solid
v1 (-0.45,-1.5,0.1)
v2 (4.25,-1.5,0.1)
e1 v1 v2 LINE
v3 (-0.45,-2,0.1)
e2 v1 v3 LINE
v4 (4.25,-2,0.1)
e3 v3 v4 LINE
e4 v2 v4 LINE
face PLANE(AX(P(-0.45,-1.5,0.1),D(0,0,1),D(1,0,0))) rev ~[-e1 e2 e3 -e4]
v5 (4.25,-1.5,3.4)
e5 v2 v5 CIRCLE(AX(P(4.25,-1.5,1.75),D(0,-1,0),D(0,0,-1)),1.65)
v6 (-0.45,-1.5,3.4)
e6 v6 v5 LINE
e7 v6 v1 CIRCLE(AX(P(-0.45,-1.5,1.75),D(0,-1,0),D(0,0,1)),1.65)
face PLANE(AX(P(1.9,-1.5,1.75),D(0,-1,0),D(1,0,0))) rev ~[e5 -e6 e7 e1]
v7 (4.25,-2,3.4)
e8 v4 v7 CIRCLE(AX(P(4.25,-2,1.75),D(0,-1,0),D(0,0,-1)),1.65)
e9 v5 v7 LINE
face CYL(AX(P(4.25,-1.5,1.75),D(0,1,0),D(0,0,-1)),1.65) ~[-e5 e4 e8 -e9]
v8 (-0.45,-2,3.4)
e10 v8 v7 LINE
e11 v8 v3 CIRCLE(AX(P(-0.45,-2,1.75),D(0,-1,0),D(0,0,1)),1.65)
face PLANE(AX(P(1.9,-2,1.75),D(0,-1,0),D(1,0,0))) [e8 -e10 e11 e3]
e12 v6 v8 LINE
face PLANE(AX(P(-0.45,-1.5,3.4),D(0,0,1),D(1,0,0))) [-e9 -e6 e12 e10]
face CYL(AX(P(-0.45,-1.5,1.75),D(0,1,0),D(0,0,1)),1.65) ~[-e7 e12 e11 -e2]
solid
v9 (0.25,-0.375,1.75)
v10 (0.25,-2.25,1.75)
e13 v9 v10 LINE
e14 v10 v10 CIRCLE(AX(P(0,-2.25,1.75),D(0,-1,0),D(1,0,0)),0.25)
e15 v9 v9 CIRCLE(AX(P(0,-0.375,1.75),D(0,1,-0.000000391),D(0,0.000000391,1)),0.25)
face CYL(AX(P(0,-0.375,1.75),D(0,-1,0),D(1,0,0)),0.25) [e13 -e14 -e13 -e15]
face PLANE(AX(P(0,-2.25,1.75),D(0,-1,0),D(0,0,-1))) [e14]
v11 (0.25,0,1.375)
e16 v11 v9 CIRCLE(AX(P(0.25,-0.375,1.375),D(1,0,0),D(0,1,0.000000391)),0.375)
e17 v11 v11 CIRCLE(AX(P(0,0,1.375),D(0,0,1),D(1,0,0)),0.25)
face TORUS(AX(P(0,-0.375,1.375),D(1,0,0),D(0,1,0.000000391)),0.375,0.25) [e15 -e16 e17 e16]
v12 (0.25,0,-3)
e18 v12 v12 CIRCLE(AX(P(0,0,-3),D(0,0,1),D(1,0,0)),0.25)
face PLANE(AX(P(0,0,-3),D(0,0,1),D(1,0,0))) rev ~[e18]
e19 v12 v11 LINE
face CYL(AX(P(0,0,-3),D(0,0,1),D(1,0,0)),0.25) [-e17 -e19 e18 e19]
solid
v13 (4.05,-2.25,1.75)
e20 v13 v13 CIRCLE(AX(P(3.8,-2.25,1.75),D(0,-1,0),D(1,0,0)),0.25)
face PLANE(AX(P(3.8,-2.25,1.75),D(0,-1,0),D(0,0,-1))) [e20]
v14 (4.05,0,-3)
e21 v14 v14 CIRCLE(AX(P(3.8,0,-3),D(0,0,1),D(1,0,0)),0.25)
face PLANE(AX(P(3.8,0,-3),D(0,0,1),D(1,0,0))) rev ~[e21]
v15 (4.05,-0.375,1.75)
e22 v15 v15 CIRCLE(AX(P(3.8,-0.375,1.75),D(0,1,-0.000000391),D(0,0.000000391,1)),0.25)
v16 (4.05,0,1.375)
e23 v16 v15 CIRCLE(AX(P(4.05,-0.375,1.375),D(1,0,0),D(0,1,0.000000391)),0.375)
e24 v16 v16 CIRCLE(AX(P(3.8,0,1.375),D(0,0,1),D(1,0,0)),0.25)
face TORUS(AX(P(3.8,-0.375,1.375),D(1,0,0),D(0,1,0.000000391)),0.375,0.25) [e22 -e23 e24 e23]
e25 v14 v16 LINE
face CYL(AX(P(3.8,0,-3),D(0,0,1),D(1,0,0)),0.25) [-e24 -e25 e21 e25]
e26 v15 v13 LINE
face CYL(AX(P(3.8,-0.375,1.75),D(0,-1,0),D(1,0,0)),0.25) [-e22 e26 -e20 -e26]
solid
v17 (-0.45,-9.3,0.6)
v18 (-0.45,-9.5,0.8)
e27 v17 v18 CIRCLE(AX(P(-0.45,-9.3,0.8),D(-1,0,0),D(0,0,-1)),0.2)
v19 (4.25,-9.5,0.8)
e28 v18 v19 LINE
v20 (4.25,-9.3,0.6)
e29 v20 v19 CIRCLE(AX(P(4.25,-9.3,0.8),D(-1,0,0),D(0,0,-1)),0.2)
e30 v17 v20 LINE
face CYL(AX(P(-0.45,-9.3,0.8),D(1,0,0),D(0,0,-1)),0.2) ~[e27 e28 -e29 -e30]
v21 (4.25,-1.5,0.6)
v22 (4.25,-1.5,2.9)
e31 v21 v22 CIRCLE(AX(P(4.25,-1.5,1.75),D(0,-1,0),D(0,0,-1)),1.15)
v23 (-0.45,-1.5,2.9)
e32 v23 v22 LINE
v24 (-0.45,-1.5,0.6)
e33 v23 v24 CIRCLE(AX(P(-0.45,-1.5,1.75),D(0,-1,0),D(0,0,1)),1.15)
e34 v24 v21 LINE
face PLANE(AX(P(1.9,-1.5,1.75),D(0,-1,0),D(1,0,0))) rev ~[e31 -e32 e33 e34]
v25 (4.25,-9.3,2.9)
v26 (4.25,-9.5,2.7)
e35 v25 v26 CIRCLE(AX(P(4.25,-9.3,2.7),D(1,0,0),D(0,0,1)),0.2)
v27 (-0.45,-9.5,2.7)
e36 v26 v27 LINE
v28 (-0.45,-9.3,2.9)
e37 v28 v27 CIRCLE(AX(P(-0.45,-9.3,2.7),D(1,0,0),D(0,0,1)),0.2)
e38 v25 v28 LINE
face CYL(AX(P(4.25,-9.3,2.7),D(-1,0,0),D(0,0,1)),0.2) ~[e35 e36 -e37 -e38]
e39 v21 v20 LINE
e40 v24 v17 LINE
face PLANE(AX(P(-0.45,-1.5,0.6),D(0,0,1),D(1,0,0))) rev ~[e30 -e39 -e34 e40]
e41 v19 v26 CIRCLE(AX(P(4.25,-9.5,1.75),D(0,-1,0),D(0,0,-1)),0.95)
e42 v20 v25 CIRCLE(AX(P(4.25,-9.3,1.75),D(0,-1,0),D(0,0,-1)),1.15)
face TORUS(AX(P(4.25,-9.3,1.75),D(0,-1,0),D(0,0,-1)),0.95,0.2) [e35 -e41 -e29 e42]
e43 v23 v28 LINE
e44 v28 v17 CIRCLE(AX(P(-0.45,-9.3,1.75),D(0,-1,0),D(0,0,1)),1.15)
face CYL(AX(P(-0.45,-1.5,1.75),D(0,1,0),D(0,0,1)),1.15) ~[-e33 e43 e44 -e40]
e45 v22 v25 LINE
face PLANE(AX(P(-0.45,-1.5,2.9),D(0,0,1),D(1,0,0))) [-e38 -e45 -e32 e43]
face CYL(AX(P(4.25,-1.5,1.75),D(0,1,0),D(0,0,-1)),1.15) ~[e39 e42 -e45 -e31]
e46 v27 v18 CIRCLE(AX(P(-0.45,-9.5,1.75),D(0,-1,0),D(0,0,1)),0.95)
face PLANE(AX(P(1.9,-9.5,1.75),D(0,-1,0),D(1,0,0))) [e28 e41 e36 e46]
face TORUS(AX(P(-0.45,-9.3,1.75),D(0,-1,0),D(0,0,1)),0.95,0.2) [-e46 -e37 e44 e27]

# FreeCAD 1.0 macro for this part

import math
import FreeCAD as App
import Part
import Sketcher

V = App.Vector
Q = App.Units.Quantity


def edges_at(feature, points):
    """Names of the edges that pass closest to the given points."""
    edges = feature.Shape.Edges
    near = lambda p: min(range(len(edges)), key=lambda i: edges[i].distToShape(Part.Vertex(*p))[0])
    return sorted({f"Edge{near(p) + 1}" for p in points})

doc = App.newDocument("Part")
params = doc.addObject("Spreadsheet::Sheet", "Params")
for row, (alias, value) in enumerate([
    ("sketch1_radius", "1.65 mm"),
    ("sketch1_width", "4.7 mm"),
    ("pad1_length", "0.5 mm"),
    ("sketch2_radius", "1.15 mm"),
    ("sketch2_width", "4.7 mm"),
    ("pad2_length", "8 mm"),
    ("fillet_radius", "0.2 mm"),
    ("sketch3_diameter", "0.5 mm"),
    ("sketch5_diameter", "0.5 mm"),
], start=1):
    params.set(f"A{row}", alias)
    params.set(f"B{row}", "=" + value)
    params.setAlias(f"B{row}", alias)

body = doc.addObject("PartDesign::Body", "Body")

sketch1 = doc.addObject("Sketcher::SketchObject", "Sketch")
body.addObject(sketch1)
sketch1.AttachmentSupport = (doc.XZ_Plane, [""])
sketch1.MapMode = "FlatFace"
sketch1.AttachmentOffset = App.Placement(V(0, 0, 1.5), App.Rotation())
sketch1.addGeometry([
    Part.ArcOfCircle(Part.Circle(V(-0.45, 1.75, 0), V(0, 0, 1), 1.65), math.radians(90), math.radians(270)),
    Part.LineSegment(V(-0.45, 0.1, 0), V(4.25, 0.1, 0)),
    Part.ArcOfCircle(Part.Circle(V(4.25, 1.75, 0), V(0, 0, 1), 1.65), math.radians(-90), math.radians(90)),
    Part.LineSegment(V(4.25, 3.4, 0), V(-0.45, 3.4, 0)),
], False)
sketch1.addConstraint([
    Sketcher.Constraint("Tangent", 0, 2, 1, 1),
    Sketcher.Constraint("Tangent", 1, 2, 2, 1),
    Sketcher.Constraint("Tangent", 2, 2, 3, 1),
    Sketcher.Constraint("Tangent", 3, 2, 0, 1),
    Sketcher.Constraint("Horizontal", 1),
    Sketcher.Constraint("Horizontal", 3),
    Sketcher.Constraint("Radius", 0, Q("1.65 mm")),
    Sketcher.Constraint("DistanceX", 1, 1, 1, 2, Q("4.7 mm")),
    Sketcher.Constraint("DistanceY", -1, 1, 0, 2, Q("0.1 mm")),
    Sketcher.Constraint("DistanceX", 0, 3, -1, 1, Q("0.45 mm")),
])
sketch1.setExpression("Constraints[6]", "Params.sketch1_radius")
sketch1.setExpression("Constraints[7]", "Params.sketch1_width")
pad1 = doc.addObject("PartDesign::Pad", "Pad")
body.addObject(pad1)
pad1.Profile = sketch1
pad1.setExpression("Length", "Params.pad1_length")
body2 = doc.addObject("PartDesign::Body", "Body001")

sketch2 = doc.addObject("Sketcher::SketchObject", "Sketch001")
body2.addObject(sketch2)
sketch2.AttachmentSupport = (doc.getObject("XZ_Plane001"), [""])
sketch2.MapMode = "FlatFace"
sketch2.AttachmentOffset = App.Placement(V(0, 0, 1.5), App.Rotation())
sketch2.addGeometry([
    Part.ArcOfCircle(Part.Circle(V(-0.45, 1.75, 0), V(0, 0, 1), 1.15), math.radians(90), math.radians(270)),
    Part.LineSegment(V(-0.45, 0.6, 0), V(4.25, 0.6, 0)),
    Part.ArcOfCircle(Part.Circle(V(4.25, 1.75, 0), V(0, 0, 1), 1.15), math.radians(-90), math.radians(90)),
    Part.LineSegment(V(4.25, 2.9, 0), V(-0.45, 2.9, 0)),
], False)
sketch2.addConstraint([
    Sketcher.Constraint("Tangent", 0, 2, 1, 1),
    Sketcher.Constraint("Tangent", 1, 2, 2, 1),
    Sketcher.Constraint("Tangent", 2, 2, 3, 1),
    Sketcher.Constraint("Tangent", 3, 2, 0, 1),
    Sketcher.Constraint("Horizontal", 1),
    Sketcher.Constraint("Horizontal", 3),
    Sketcher.Constraint("Radius", 0, Q("1.15 mm")),
    Sketcher.Constraint("DistanceX", 1, 1, 1, 2, Q("4.7 mm")),
    Sketcher.Constraint("DistanceY", -1, 1, 0, 2, Q("0.6 mm")),
    Sketcher.Constraint("DistanceX", 0, 3, -1, 1, Q("0.45 mm")),
])
sketch2.setExpression("Constraints[6]", "Params.sketch2_radius")
sketch2.setExpression("Constraints[7]", "Params.sketch2_width")
pad2 = doc.addObject("PartDesign::Pad", "Pad001")
body2.addObject(pad2)
pad2.Profile = sketch2
pad2.setExpression("Length", "Params.pad2_length")
doc.recompute()

fillet = doc.addObject("PartDesign::Fillet", "Fillet")
body2.addObject(fillet)
fillet.Base = (pad2, edges_at(pad2, [
    (1.9, -9.5, 0.6),
    (-1.6, -9.5, 1.75),
    (1.9, -9.5, 2.9),
    (5.4, -9.5, 1.75),
]))
fillet.setExpression("Radius", "Params.fillet_radius")
body3 = doc.addObject("PartDesign::Body", "Body002")

sketch3 = doc.addObject("Sketcher::SketchObject", "Sketch002")
body3.addObject(sketch3)
sketch3.AttachmentSupport = (doc.getObject("XY_Plane002"), [""])
sketch3.MapMode = "FlatFace"
sketch3.AttachmentOffset = App.Placement(V(0, 0, 0.1), App.Rotation())
sketch3.addGeometry(Part.Circle(V(0, 0, 0), V(0, 0, 1), 0.25), False)
sketch3.addConstraint([
    Sketcher.Constraint("Coincident", 0, 3, -1, 1),
    Sketcher.Constraint("Diameter", 0, Q("0.5 mm")),
])
sketch3.setExpression("Constraints[1]", "Params.sketch3_diameter")

sketch4 = doc.addObject("Sketcher::SketchObject", "Sketch003")
body3.addObject(sketch4)
sketch4.AttachmentSupport = (doc.getObject("YZ_Plane002"), [""])
sketch4.MapMode = "FlatFace"
sketch4.addGeometry([
    Part.LineSegment(V(0, -3, 0), V(0, 1.375, 0)),
    Part.ArcOfCircle(Part.Circle(V(-0.375, 1.375, 0), V(0, 0, 1), 0.375), math.radians(0.000022), math.radians(89.999978)),
    Part.LineSegment(V(-0.375, 1.75, 0), V(-2.25, 1.75, 0)),
], False)
sketch4.addConstraint([
    Sketcher.Constraint("Tangent", 0, 2, 1, 1),
    Sketcher.Constraint("Tangent", 1, 2, 2, 1),
    Sketcher.Constraint("Vertical", 0),
    Sketcher.Constraint("Horizontal", 2),
    Sketcher.Constraint("PointOnObject", 0, 1, -2),
    Sketcher.Constraint("DistanceY", 0, 1, -1, 1, Q("3 mm")),
    Sketcher.Constraint("Radius", 1, Q("0.375 mm")),
    Sketcher.Constraint("DistanceX", 2, 2, 2, 1, Q("1.875 mm")),
    Sketcher.Constraint("DistanceY", 0, 1, 0, 2, Q("4.375 mm")),
])
doc.recompute()

additivepipe = doc.addObject("PartDesign::AdditivePipe", "AdditivePipe")
body3.addObject(additivepipe)
additivepipe.Profile = sketch3
additivepipe.Spine = (sketch4, ["Edge1", "Edge2", "Edge3"])
body4 = doc.addObject("PartDesign::Body", "Body003")

sketch5 = doc.addObject("Sketcher::SketchObject", "Sketch004")
body4.addObject(sketch5)
sketch5.AttachmentSupport = (doc.getObject("XY_Plane003"), [""])
sketch5.MapMode = "FlatFace"
sketch5.AttachmentOffset = App.Placement(V(0, 0, 0.1), App.Rotation())
sketch5.addGeometry(Part.Circle(V(3.8, 0, 0), V(0, 0, 1), 0.25), False)
sketch5.addConstraint([
    Sketcher.Constraint("PointOnObject", 0, 3, -1),
    Sketcher.Constraint("Diameter", 0, Q("0.5 mm")),
    Sketcher.Constraint("DistanceX", -1, 1, 0, 3, Q("3.8 mm")),
])
sketch5.setExpression("Constraints[1]", "Params.sketch5_diameter")

sketch6 = doc.addObject("Sketcher::SketchObject", "Sketch005")
body4.addObject(sketch6)
sketch6.AttachmentSupport = (doc.getObject("YZ_Plane003"), [""])
sketch6.MapMode = "FlatFace"
sketch6.addGeometry([
    Part.LineSegment(V(0, -3, 0), V(0, 1.375, 0)),
    Part.ArcOfCircle(Part.Circle(V(-0.375, 1.375, 0), V(0, 0, 1), 0.375), math.radians(0.000022), math.radians(89.999978)),
    Part.LineSegment(V(-0.375, 1.75, 0), V(-2.25, 1.75, 0)),
], False)
sketch6.addConstraint([
    Sketcher.Constraint("Tangent", 0, 2, 1, 1),
    Sketcher.Constraint("Tangent", 1, 2, 2, 1),
    Sketcher.Constraint("Vertical", 0),
    Sketcher.Constraint("Horizontal", 2),
    Sketcher.Constraint("PointOnObject", 0, 1, -2),
    Sketcher.Constraint("DistanceY", 0, 1, -1, 1, Q("3 mm")),
    Sketcher.Constraint("Radius", 1, Q("0.375 mm")),
    Sketcher.Constraint("DistanceX", 2, 2, 2, 1, Q("1.875 mm")),
    Sketcher.Constraint("DistanceY", 0, 1, 0, 2, Q("4.375 mm")),
])
doc.recompute()

additivepipe2 = doc.addObject("PartDesign::AdditivePipe", "AdditivePipe001")
body4.addObject(additivepipe2)
additivepipe2.Profile = sketch5
additivepipe2.Spine = (sketch6, ["Edge1", "Edge2", "Edge3"])

doc.recompute()
